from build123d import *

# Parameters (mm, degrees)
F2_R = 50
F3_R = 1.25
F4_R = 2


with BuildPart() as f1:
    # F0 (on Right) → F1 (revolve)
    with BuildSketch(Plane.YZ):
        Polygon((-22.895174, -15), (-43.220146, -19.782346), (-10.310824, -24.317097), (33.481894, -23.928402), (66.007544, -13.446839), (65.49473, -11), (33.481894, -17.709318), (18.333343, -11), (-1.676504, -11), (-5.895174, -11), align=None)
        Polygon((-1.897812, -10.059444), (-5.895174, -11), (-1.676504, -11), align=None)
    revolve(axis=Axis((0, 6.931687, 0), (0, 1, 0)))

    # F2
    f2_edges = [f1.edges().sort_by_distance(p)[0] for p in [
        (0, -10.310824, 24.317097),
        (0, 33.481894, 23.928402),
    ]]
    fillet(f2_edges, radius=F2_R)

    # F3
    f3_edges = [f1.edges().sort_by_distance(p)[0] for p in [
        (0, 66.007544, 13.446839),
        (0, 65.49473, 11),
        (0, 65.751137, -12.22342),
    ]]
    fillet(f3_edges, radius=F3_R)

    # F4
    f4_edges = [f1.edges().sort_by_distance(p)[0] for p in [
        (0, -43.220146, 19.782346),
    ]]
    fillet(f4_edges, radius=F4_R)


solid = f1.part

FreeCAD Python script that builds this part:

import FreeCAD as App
import Part
import Sketcher
from FreeCAD import Vector


def edges_at(feature, points):
    """Names of the edges that pass closest to the given points."""
    edges = feature.Shape.Edges
    near = lambda p: min(range(len(edges)), key=lambda i: edges[i].distToShape(Part.Vertex(*p))[0])
    return sorted({f"Edge{near(p) + 1}" for p in points})

doc = App.newDocument("Part")
body = doc.addObject("PartDesign::Body", "Body")

sketch1 = doc.addObject("Sketcher::SketchObject", "Sketch")
body.addObject(sketch1)
sketch1.AttachmentSupport = (doc.YZ_Plane, [""])
sketch1.MapMode = "FlatFace"
sketch1.addGeometry([
    Part.LineSegment(Vector(-22.895174, -15, 0), Vector(-43.220146, -19.782346, 0)),
    Part.LineSegment(Vector(-43.220146, -19.782346, 0), Vector(-10.310824, -24.317097, 0)),
    Part.LineSegment(Vector(-10.310824, -24.317097, 0), Vector(33.481894, -23.928402, 0)),
    Part.LineSegment(Vector(33.481894, -23.928402, 0), Vector(66.007544, -13.446839, 0)),
    Part.LineSegment(Vector(66.007544, -13.446839, 0), Vector(65.49473, -11, 0)),
    Part.LineSegment(Vector(65.49473, -11, 0), Vector(33.481894, -17.709318, 0)),
    Part.LineSegment(Vector(33.481894, -17.709318, 0), Vector(18.333343, -11, 0)),
    Part.LineSegment(Vector(18.333343, -11, 0), Vector(-1.676504, -11, 0)),
    Part.LineSegment(Vector(-1.676504, -11, 0), Vector(-1.897812, -10.059444, 0)),
    Part.LineSegment(Vector(-1.897812, -10.059444, 0), Vector(-5.895174, -11, 0)),
    Part.LineSegment(Vector(-5.895174, -11, 0), Vector(-22.895174, -15, 0)),
], False)
sketch1.addConstraint([
    Sketcher.Constraint("Coincident", 0, 2, 1, 1),
    Sketcher.Constraint("Coincident", 1, 2, 2, 1),
    Sketcher.Constraint("Coincident", 2, 2, 3, 1),
    Sketcher.Constraint("Coincident", 3, 2, 4, 1),
    Sketcher.Constraint("Coincident", 4, 2, 5, 1),
    Sketcher.Constraint("Coincident", 5, 2, 6, 1),
    Sketcher.Constraint("Coincident", 6, 2, 7, 1),
    Sketcher.Constraint("Coincident", 7, 2, 8, 1),
    Sketcher.Constraint("Coincident", 8, 2, 9, 1),
    Sketcher.Constraint("Coincident", 9, 2, 10, 1),
    Sketcher.Constraint("Coincident", 10, 2, 0, 1),
    Sketcher.Constraint("Horizontal", 7),
    Sketcher.Constraint("Perpendicular", 4, 5),
    Sketcher.Constraint("Perpendicular", 0, 8),
    Sketcher.Constraint("Perpendicular", 8, 9),
    Sketcher.Constraint("Parallel", 9, 10),
    Sketcher.Constraint("Horizontal", 4, 2, 6, 2),
    Sketcher.Constraint("Horizontal", 7, 2, 9, 2),
    Sketcher.Constraint("Vertical", 2, 2, 5, 2),
    Sketcher.Constraint("DistanceY", 4, 2, -1, 1, 11.0),
    Sketcher.Constraint("DistanceY", 10, 2, -1, 1, 15.0),
    Sketcher.Constraint("DistanceX", 10, 2, 9, 2, 17.0),
    Sketcher.Constraint("Distance", 4, 2.5),
    Sketcher.Constraint("DistanceY", 2, 2, -1, 1, 23.928402),
    Sketcher.Constraint("DistanceX", 6, 2, 3, 2, 47.674201),
    Sketcher.Constraint("Distance", 3, 34.172812),
    Sketcher.Constraint("Distance", 8, 0.966242),
    Sketcher.Constraint("DistanceX", 7, 2, 7, 1, 20.009847),
    Sketcher.Constraint("DistanceY", 3, 2, -1, 1, 13.446839),
    Sketcher.Constraint("DistanceX", -1, 1, 4, 2, 65.49473),
    Sketcher.Constraint("DistanceY", 1, 2, 0, 2, 4.534751),
    Sketcher.Constraint("DistanceX", 0, 2, 2, 2, 76.70204),
    Sketcher.Constraint("DistanceX", 1, 2, 7, 2, 8.63432),
])
revolution = doc.addObject("PartDesign::Revolution", "Revolution")
body.addObject(revolution)
revolution.Profile = sketch1
revolution.ReferenceAxis = (sketch1, ["H_Axis"])
revolution.Angle = 360
doc.recompute()

fillet = doc.addObject("PartDesign::Fillet", "Fillet")
body.addObject(fillet)
fillet.Base = (revolution, edges_at(revolution, [(0, -10.311, 24.317), (0, 33.482, 23.928)]))
fillet.Radius = 50
doc.recompute()

fillet2 = doc.addObject("PartDesign::Fillet", "Fillet001")
body.addObject(fillet2)
fillet2.Base = (fillet, edges_at(fillet, [(0, 66.008, 13.447), (0, 65.495, 11), (0, 65.751, -12.223)]))
fillet2.Radius = 1.25
doc.recompute()

fillet3 = doc.addObject("PartDesign::Fillet", "Fillet002")
body.addObject(fillet3)
fillet3.Base = (fillet2, edges_at(fillet2, [(0, -43.22, 19.782)]))
fillet3.Radius = 2

doc.recompute()
